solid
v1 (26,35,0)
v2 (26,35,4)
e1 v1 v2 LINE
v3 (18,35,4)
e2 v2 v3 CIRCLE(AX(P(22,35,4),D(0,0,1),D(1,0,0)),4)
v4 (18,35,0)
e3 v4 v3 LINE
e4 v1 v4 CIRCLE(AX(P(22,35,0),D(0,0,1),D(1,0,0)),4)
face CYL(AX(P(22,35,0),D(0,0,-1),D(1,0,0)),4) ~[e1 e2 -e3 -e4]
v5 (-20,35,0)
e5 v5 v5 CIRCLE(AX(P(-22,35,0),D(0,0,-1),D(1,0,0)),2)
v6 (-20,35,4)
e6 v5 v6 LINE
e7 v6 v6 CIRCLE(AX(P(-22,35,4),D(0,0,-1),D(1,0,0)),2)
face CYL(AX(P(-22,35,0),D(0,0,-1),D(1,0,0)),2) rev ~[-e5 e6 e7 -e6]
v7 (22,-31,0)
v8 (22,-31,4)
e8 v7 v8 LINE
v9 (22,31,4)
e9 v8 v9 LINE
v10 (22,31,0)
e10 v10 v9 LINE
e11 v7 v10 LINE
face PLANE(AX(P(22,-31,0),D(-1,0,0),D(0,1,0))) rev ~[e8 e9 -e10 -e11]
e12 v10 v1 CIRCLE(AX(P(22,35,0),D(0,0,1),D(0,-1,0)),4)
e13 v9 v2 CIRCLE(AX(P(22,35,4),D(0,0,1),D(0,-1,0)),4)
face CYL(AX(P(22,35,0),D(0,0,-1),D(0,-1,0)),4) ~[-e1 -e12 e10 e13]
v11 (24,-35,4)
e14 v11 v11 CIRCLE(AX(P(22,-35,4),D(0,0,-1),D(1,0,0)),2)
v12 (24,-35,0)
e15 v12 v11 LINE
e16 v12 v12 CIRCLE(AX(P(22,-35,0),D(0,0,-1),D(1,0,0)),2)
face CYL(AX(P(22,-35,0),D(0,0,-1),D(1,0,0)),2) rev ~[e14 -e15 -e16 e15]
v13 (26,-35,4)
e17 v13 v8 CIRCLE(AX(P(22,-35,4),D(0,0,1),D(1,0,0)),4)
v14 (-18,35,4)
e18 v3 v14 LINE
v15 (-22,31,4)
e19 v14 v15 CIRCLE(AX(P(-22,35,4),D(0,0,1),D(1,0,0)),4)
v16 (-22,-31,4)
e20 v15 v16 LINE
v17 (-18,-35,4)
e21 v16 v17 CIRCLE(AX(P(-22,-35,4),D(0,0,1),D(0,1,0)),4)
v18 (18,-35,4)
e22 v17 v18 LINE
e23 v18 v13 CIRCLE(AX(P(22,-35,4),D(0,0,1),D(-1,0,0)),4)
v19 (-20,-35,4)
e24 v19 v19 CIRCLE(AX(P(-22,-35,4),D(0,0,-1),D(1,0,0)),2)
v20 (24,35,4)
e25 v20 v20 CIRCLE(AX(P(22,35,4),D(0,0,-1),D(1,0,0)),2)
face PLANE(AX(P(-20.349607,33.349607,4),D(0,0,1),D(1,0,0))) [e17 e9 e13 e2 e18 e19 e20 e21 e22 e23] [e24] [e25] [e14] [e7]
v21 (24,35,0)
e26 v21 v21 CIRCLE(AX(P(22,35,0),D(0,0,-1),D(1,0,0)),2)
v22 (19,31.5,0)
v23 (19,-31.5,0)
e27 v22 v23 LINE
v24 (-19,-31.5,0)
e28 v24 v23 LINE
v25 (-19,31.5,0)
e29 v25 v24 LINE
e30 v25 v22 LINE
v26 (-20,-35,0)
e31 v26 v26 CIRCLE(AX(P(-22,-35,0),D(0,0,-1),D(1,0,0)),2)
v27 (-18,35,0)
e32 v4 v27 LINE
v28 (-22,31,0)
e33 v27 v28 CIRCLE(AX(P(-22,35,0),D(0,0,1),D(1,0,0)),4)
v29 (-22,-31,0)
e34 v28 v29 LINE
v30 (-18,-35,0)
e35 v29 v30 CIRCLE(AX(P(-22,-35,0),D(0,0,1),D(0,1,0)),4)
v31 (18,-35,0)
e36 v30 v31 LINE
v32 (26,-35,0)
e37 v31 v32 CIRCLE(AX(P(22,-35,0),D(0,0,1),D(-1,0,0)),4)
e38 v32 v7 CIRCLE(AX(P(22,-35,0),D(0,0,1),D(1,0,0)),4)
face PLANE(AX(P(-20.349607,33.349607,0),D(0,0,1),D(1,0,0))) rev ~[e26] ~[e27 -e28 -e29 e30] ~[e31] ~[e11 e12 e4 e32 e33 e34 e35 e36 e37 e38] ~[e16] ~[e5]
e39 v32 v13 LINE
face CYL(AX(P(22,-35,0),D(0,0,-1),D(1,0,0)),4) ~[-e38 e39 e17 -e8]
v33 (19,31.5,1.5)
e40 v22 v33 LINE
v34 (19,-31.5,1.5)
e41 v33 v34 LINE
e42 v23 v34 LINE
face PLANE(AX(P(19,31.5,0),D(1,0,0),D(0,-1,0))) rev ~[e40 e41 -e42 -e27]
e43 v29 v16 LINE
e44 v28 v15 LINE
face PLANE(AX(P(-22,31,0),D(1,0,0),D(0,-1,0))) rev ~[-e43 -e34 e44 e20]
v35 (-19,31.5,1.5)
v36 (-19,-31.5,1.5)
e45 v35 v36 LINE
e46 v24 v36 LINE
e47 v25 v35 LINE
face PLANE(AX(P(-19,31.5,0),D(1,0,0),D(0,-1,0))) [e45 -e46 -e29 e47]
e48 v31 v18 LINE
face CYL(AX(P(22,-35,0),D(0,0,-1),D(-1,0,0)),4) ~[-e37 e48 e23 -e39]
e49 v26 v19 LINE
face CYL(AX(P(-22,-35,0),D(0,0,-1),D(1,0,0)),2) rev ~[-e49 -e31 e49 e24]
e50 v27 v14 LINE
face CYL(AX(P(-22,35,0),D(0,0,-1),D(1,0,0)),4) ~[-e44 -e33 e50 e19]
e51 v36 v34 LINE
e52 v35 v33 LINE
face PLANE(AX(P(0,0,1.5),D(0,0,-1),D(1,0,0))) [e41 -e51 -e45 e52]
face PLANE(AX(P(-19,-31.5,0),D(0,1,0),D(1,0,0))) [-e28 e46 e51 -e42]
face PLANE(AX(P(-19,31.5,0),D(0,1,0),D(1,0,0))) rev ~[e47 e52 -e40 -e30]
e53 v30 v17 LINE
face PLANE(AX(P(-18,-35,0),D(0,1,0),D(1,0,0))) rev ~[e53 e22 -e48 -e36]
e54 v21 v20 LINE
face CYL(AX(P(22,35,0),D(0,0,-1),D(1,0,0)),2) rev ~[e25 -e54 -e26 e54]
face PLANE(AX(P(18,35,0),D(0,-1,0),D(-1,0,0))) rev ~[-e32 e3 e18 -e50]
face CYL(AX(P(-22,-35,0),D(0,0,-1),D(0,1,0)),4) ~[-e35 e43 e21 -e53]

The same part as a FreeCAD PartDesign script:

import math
import FreeCAD as App
import Part
import Sketcher

V = App.Vector
Q = App.Units.Quantity


def add_polygon(sketch, points):
    """Adds a closed chain of lines whose ends are joined by coincident constraints."""
    first, n = sketch.GeometryCount, len(points)
    for a, b in zip(points, points[1:] + points[:1]):
        sketch.addGeometry(Part.LineSegment(App.Vector(*a, 0), App.Vector(*b, 0)), False)
    for i in range(n):
        sketch.addConstraint(Sketcher.Constraint("Coincident", first + i, 2, first + (i + 1) % n, 1))

doc = App.newDocument("Part")
body = doc.addObject("PartDesign::Body", "Body")

sketch1 = doc.addObject("Sketcher::SketchObject", "Sketch")
body.addObject(sketch1)
sketch1.AttachmentSupport = (doc.XY_Plane, [""])
sketch1.MapMode = "FlatFace"
sketch1.addGeometry(Part.ArcOfCircle(Part.Circle(V(-22, 35, 0), V(0, 0, 1), 4), math.radians(0), math.radians(270)), False)
sketch1.addGeometry(Part.LineSegment(V(-22, 31, 0), V(-22, -31, 0)), False)
sketch1.addGeometry(Part.ArcOfCircle(Part.Circle(V(-22, -35, 0), V(0, 0, 1), 4), math.radians(90), math.radians(360)), False)
sketch1.addGeometry(Part.LineSegment(V(-18, -35, 0), V(18, -35, 0)), False)
sketch1.addGeometry(Part.ArcOfCircle(Part.Circle(V(22, -35, 0), V(0, 0, 1), 4), math.radians(180), math.radians(360)), False)
sketch1.addGeometry(Part.ArcOfCircle(Part.Circle(V(22, -35, 0), V(0, 0, 1), 4), math.radians(0), math.radians(90)), False)
sketch1.addGeometry(Part.LineSegment(V(22, -31, 0), V(22, 31, 0)), False)
sketch1.addGeometry(Part.ArcOfCircle(Part.Circle(V(22, 35, 0), V(0, 0, 1), 4), math.radians(-90), math.radians(0)), False)
sketch1.addGeometry(Part.ArcOfCircle(Part.Circle(V(22, 35, 0), V(0, 0, 1), 4), math.radians(0), math.radians(180)), False)
sketch1.addGeometry(Part.LineSegment(V(18, 35, 0), V(-18, 35, 0)), False)
sketch1.addConstraint(Sketcher.Constraint("Coincident", 0, 2, 1, 1))
sketch1.addConstraint(Sketcher.Constraint("Coincident", 1, 2, 2, 1))
sketch1.addConstraint(Sketcher.Constraint("Coincident", 2, 2, 3, 1))
sketch1.addConstraint(Sketcher.Constraint("Coincident", 3, 2, 4, 1))
sketch1.addConstraint(Sketcher.Constraint("Tangent", 4, 2, 5, 1))
sketch1.addConstraint(Sketcher.Constraint("Coincident", 5, 2, 6, 1))
sketch1.addConstraint(Sketcher.Constraint("Coincident", 6, 2, 7, 1))
sketch1.addConstraint(Sketcher.Constraint("Tangent", 7, 2, 8, 1))
sketch1.addConstraint(Sketcher.Constraint("Coincident", 8, 2, 9, 1))
sketch1.addConstraint(Sketcher.Constraint("Coincident", 9, 2, 0, 1))
sketch1.addConstraint(Sketcher.Constraint("Vertical", 1))
sketch1.addConstraint(Sketcher.Constraint("Horizontal", 3))
sketch1.addConstraint(Sketcher.Constraint("Vertical", 6))
sketch1.addConstraint(Sketcher.Constraint("Horizontal", 9))
sketch1.addConstraint(Sketcher.Constraint("Equal", 0, 2))
sketch1.addConstraint(Sketcher.Constraint("Equal", 2, 4))
sketch1.addConstraint(Sketcher.Constraint("Equal", 4, 5))
sketch1.addConstraint(Sketcher.Constraint("Equal", 5, 7))
sketch1.addConstraint(Sketcher.Constraint("Equal", 7, 8))
sketch1.addConstraint(Sketcher.Constraint("Symmetric", 0, 3, 4, 3, -1, 1))
sketch1.addConstraint(Sketcher.Constraint("Symmetric", 2, 3, 7, 3, -1, 1))
sketch1.addConstraint(Sketcher.Constraint("Symmetric", 2, 3, 4, 3, -2))
sketch1.addConstraint(Sketcher.Constraint("Horizontal", 5, 3, 2, 2))
sketch1.addConstraint(Sketcher.Constraint("Horizontal", 3, 2, 4, 2))
sketch1.addConstraint(Sketcher.Constraint("Horizontal", 8, 3, 7, 2))
sketch1.addConstraint(Sketcher.Constraint("Horizontal", 7, 2, 8, 2))
sketch1.addConstraint(Sketcher.Constraint("Vertical", 2, 3, 0, 2))
sketch1.addConstraint(Sketcher.Constraint("Vertical", 8, 3, 5, 2))
sketch1.addConstraint(Sketcher.Constraint("Radius", 0, Q("4 mm")))
sketch1.addConstraint(Sketcher.Constraint("DistanceX", 3, 1, 3, 2, Q("36 mm")))
sketch1.addConstraint(Sketcher.Constraint("DistanceY", 1, 2, 1, 1, Q("62 mm")))
pad1 = doc.addObject("PartDesign::Pad", "Pad")
body.addObject(pad1)
pad1.Profile = sketch1
pad1.Length = 4

sketch2 = doc.addObject("Sketcher::SketchObject", "Sketch001")
body.addObject(sketch2)
sketch2.AttachmentSupport = (doc.XY_Plane, [""])
sketch2.MapMode = "FlatFace"
add_polygon(sketch2, [(-19, -32), (-19, 32), (19, 32), (19, -32)])
sketch2.addConstraint(Sketcher.Constraint("Vertical", 0))
sketch2.addConstraint(Sketcher.Constraint("Horizontal", 1))
sketch2.addConstraint(Sketcher.Constraint("Vertical", 2))
sketch2.addConstraint(Sketcher.Constraint("Horizontal", 3))
sketch2.addConstraint(Sketcher.Constraint("Symmetric", 0, 2, 2, 2, -1, 1))
sketch2.addConstraint(Sketcher.Constraint("DistanceX", 1, 1, 1, 2, Q("38 mm")))
sketch2.addConstraint(Sketcher.Constraint("DistanceY", 0, 1, 0, 2, Q("63 mm")))
pocket1 = doc.addObject("PartDesign::Pocket", "Pocket")
body.addObject(pocket1)
pocket1.Profile = sketch2
pocket1.Length = 1.5
pocket1.Reversed = True

sketch3 = doc.addObject("Sketcher::SketchObject", "Sketch002")
body.addObject(sketch3)
sketch3.AttachmentSupport = (doc.XY_Plane, [""])
sketch3.MapMode = "FlatFace"
sketch3.addGeometry(Part.Circle(V(-22, -35, 0), V(0, 0, 1), 2), False)
sketch3.addGeometry(Part.Circle(V(22, -35, 0), V(0, 0, 1), 2), False)
sketch3.addGeometry(Part.Circle(V(-22, 35, 0), V(0, 0, 1), 2), False)
sketch3.addGeometry(Part.Circle(V(22, 35, 0), V(0, 0, 1), 2), False)
sketch3.addConstraint(Sketcher.Constraint("Equal", 0, 1))
sketch3.addConstraint(Sketcher.Constraint("Equal", 1, 2))
sketch3.addConstraint(Sketcher.Constraint("Equal", 2, 3))
sketch3.addConstraint(Sketcher.Constraint("Symmetric", 1, 3, 2, 3, -1, 1))
sketch3.addConstraint(Sketcher.Constraint("Symmetric", 0, 3, 3, 3, -1, 1))
sketch3.addConstraint(Sketcher.Constraint("Symmetric", 0, 3, 1, 3, -2))
sketch3.addConstraint(Sketcher.Constraint("Diameter", 0, Q("4 mm")))
sketch3.addConstraint(Sketcher.Constraint("DistanceX", 0, 3, -1, 1, Q("22 mm")))
sketch3.addConstraint(Sketcher.Constraint("DistanceY", 0, 3, -1, 1, Q("35 mm")))
pocket2 = doc.addObject("PartDesign::Pocket", "Pocket001")
body.addObject(pocket2)
pocket2.Profile = sketch3
pocket2.Type = "ThroughAll"
pocket2.Reversed = True

doc.recompute()
